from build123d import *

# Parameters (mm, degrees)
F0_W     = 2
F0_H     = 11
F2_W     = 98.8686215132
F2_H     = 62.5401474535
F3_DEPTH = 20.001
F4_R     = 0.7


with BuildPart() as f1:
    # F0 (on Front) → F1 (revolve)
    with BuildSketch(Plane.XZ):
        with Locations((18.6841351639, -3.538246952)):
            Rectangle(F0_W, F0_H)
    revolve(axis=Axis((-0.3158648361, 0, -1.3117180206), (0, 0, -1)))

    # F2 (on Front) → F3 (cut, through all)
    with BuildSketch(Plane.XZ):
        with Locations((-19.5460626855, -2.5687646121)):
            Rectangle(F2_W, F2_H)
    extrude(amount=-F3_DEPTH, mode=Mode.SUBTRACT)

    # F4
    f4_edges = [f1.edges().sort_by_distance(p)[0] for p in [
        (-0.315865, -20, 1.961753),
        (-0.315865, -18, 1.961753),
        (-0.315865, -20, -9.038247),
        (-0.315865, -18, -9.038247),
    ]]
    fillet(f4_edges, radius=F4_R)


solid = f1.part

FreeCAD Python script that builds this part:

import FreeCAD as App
import Part
import Sketcher
from FreeCAD import Vector
Q = App.Units.Quantity


def edges_at(feature, points):
    """Names of the edges that pass closest to the given points."""
    edges = feature.Shape.Edges
    near = lambda p: min(range(len(edges)), key=lambda i: edges[i].distToShape(Part.Vertex(*p))[0])
    return sorted({f"Edge{near(p) + 1}" for p in points})


def add_polygon(sketch, points):
    """Adds a closed chain of lines whose ends are joined by coincident constraints."""
    first, n = sketch.GeometryCount, len(points)
    for a, b in zip(points, points[1:] + points[:1]):
        sketch.addGeometry(Part.LineSegment(App.Vector(*a, 0), App.Vector(*b, 0)), False)
    for i in range(n):
        sketch.addConstraint(Sketcher.Constraint("Coincident", first + i, 2, first + (i + 1) % n, 1))

doc = App.newDocument("Part")
body = doc.addObject("PartDesign::Body", "Body")

# Sketch on XZ plane
sketch1 = body.newObject("Sketcher::SketchObject", "Sketch")
sketch1.AttachmentSupport = (doc.getObject("XZ_Plane"), [""])
sketch1.MapMode = "FlatFace"
add_polygon(sketch1, [(17.684135, 1.961753), (17.684135, -9.038247), (19.684135, -9.038247), (19.684135, 1.961753)])  # lines 0-3
sketch1.addGeometry(Part.LineSegment(Vector(-0.315865, 1.961753, 0), Vector(-0.315865, -9.038247, 0)), True)  # axis
sketch1.addConstraint(Sketcher.Constraint("Vertical", 0))
sketch1.addConstraint(Sketcher.Constraint("Horizontal", 1))
sketch1.addConstraint(Sketcher.Constraint("Vertical", 2))
sketch1.addConstraint(Sketcher.Constraint("Horizontal", 3))
sketch1.addConstraint(Sketcher.Constraint("Vertical", 4))
sketch1.addConstraint(Sketcher.Constraint("Horizontal", 3, 2, 4, 1))
sketch1.addConstraint(Sketcher.Constraint("Horizontal", 1, 2, 4, 2))
sketch1.addConstraint(Sketcher.Constraint("DistanceX", 1, 1, 1, 2, Q("2 mm")))
sketch1.addConstraint(Sketcher.Constraint("DistanceY", 0, 2, 0, 1, Q("11 mm")))
sketch1.addConstraint(Sketcher.Constraint("DistanceX", 4, 1, 3, 2, Q("18 mm")))
sketch1.addConstraint(Sketcher.Constraint("DistanceX", -1, 1, 0, 2, Q("17.684135 mm")))
sketch1.addConstraint(Sketcher.Constraint("DistanceY", 0, 2, -1, 1, Q("9.038247 mm")))
revolution = body.newObject("PartDesign::Revolution", "Revolution")
revolution.Profile = sketch1
revolution.ReferenceAxis = (sketch1, ["Axis0"])
revolution.Angle = 360

# Sketch on XZ plane
sketch2 = body.newObject("Sketcher::SketchObject", "Sketch001")
sketch2.AttachmentSupport = (doc.getObject("XZ_Plane"), [""])
sketch2.MapMode = "FlatFace"
add_polygon(sketch2, [(-68.980373, 28.701309), (-68.980373, -33.838838), (29.888248, -33.838838), (29.888248, 28.701309)])  # lines 0-3
sketch2.addConstraint(Sketcher.Constraint("Vertical", 0))
sketch2.addConstraint(Sketcher.Constraint("Horizontal", 1))
sketch2.addConstraint(Sketcher.Constraint("Vertical", 2))
sketch2.addConstraint(Sketcher.Constraint("Horizontal", 3))
sketch2.addConstraint(Sketcher.Constraint("DistanceX", 1, 1, 1, 2, Q("98.868622 mm")))
sketch2.addConstraint(Sketcher.Constraint("DistanceY", 0, 2, 0, 1, Q("62.540147 mm")))
sketch2.addConstraint(Sketcher.Constraint("DistanceY", 0, 2, -1, 1, Q("33.838838 mm")))
sketch2.addConstraint(Sketcher.Constraint("DistanceX", -1, 1, 1, 2, Q("29.888248 mm")))
pocket1 = body.newObject("PartDesign::Pocket", "Pocket")
pocket1.Profile = sketch2
pocket1.Type = "ThroughAll"
doc.recompute()

fillet = body.newObject("PartDesign::Fillet", "Fillet")
fillet.Base = (pocket1, edges_at(pocket1, [
    (-0.316, -20, 1.962),
    (-0.316, -18, 1.962),
    (-0.316, -20, -9.038),
    (-0.316, -18, -9.038),
]))
fillet.Radius = 0.7

doc.recompute()
